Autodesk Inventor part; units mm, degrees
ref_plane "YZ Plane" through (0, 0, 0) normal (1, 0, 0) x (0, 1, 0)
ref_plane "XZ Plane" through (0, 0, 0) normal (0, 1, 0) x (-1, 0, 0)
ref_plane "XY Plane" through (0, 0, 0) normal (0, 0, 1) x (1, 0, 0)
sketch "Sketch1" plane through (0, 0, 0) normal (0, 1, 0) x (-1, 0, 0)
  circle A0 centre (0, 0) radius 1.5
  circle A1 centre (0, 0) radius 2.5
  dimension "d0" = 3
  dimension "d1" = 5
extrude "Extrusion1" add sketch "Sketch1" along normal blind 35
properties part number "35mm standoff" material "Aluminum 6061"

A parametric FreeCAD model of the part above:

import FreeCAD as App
import Part
import Sketcher
from FreeCAD import Vector
Q = App.Units.Quantity

doc = App.newDocument("Part")
body = doc.addObject("PartDesign::Body", "Body")

# Sketch on XZ plane
sketch1 = doc.addObject("Sketcher::SketchObject", "Sketch")
body.addObject(sketch1)
sketch1.AttachmentSupport = (doc.XZ_Plane, [""])
sketch1.MapMode = "FlatFace"
sketch1.addGeometry(Part.Circle(Vector(0, 0, 0), Vector(0, 0, 1), 2.5), False)
sketch1.addGeometry(Part.Circle(Vector(0, 0, 0), Vector(0, 0, 1), 1.5), False)
sketch1.addConstraint(Sketcher.Constraint("Coincident", 0, 3, -1, 1))
sketch1.addConstraint(Sketcher.Constraint("Coincident", 1, 3, -1, 1))
sketch1.addConstraint(Sketcher.Constraint("Diameter", 0, Q("5 mm")))
sketch1.addConstraint(Sketcher.Constraint("Diameter", 1, Q("3 mm")))
pad1 = doc.addObject("PartDesign::Pad", "Pad")
body.addObject(pad1)
pad1.Profile = sketch1
pad1.Length = 35
pad1.Reversed = True

doc.recompute()
